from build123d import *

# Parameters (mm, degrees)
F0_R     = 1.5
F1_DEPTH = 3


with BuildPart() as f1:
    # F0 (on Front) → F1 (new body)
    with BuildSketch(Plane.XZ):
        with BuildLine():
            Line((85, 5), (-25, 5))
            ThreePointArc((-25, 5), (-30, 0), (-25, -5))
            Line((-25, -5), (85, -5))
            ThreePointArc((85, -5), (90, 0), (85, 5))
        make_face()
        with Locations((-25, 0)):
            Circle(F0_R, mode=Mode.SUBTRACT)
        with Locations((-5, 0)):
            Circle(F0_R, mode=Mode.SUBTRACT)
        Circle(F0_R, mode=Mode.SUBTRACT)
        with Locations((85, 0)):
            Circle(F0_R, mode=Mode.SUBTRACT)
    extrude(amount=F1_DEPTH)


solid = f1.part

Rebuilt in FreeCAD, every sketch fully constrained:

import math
import FreeCAD as App
import Part
import Sketcher

doc = App.newDocument("Part")
body = doc.addObject("PartDesign::Body", "Body")

# Sketch on XZ plane
sketch1 = body.newObject("Sketcher::SketchObject", "Sketch")
sketch1.AttachmentSupport = (doc.getObject("XZ_Plane"), [""])
sketch1.MapMode = "FlatFace"
sketch1.addGeometry([
    Part.LineSegment(App.Vector(85, 5, 0), App.Vector(-25, 5, 0)),  # 0
    Part.ArcOfCircle(Part.Circle(App.Vector(-25, 0, 0), App.Vector(0, 0, 1), 5), math.radians(90), math.radians(270)),  # 1
    Part.LineSegment(App.Vector(-25, -5, 0), App.Vector(85, -5, 0)),  # 2
    Part.ArcOfCircle(Part.Circle(App.Vector(85, 0, 0), App.Vector(0, 0, 1), 5), math.radians(-90), math.radians(90)),  # 3
    Part.Circle(App.Vector(-25, 0, 0), App.Vector(0, 0, 1), 1.5),  # 4
    Part.Circle(App.Vector(-5, 0, 0), App.Vector(0, 0, 1), 1.5),  # 5
    Part.Circle(App.Vector(0, 0, 0), App.Vector(0, 0, 1), 1.5),  # 6
    Part.Circle(App.Vector(85, 0, 0), App.Vector(0, 0, 1), 1.5),  # 7
], False)
sketch1.addConstraint([
    Sketcher.Constraint("Tangent", 0, 2, 1, 1),
    Sketcher.Constraint("Tangent", 1, 2, 2, 1),
    Sketcher.Constraint("Tangent", 2, 2, 3, 1),
    Sketcher.Constraint("Tangent", 3, 2, 0, 1),
    Sketcher.Constraint("Horizontal", 0),
    Sketcher.Constraint("Horizontal", 2),
    Sketcher.Constraint("Coincident", 6, 3, -1, 1),
    Sketcher.Constraint("Coincident", 4, 3, 1, 3),
    Sketcher.Constraint("Coincident", 7, 3, 3, 3),
    Sketcher.Constraint("Equal", 4, 5),
    Sketcher.Constraint("Equal", 5, 6),
    Sketcher.Constraint("Equal", 6, 7),
    Sketcher.Constraint("PointOnObject", 1, 3, -1),
    Sketcher.Constraint("PointOnObject", 5, 3, -1),
    Sketcher.Constraint("Diameter", 4, 3.0),
    Sketcher.Constraint("Radius", 1, 5.0),
    Sketcher.Constraint("DistanceX", 0, 2, 0, 1, 110.0),
    Sketcher.Constraint("DistanceX", 1, 3, -1, 1, 25.0),
    Sketcher.Constraint("DistanceX", 5, 3, -1, 1, 5.0),
])
pad1 = body.newObject("PartDesign::Pad", "Pad")
pad1.Profile = sketch1
pad1.Length = 3

doc.recompute()
